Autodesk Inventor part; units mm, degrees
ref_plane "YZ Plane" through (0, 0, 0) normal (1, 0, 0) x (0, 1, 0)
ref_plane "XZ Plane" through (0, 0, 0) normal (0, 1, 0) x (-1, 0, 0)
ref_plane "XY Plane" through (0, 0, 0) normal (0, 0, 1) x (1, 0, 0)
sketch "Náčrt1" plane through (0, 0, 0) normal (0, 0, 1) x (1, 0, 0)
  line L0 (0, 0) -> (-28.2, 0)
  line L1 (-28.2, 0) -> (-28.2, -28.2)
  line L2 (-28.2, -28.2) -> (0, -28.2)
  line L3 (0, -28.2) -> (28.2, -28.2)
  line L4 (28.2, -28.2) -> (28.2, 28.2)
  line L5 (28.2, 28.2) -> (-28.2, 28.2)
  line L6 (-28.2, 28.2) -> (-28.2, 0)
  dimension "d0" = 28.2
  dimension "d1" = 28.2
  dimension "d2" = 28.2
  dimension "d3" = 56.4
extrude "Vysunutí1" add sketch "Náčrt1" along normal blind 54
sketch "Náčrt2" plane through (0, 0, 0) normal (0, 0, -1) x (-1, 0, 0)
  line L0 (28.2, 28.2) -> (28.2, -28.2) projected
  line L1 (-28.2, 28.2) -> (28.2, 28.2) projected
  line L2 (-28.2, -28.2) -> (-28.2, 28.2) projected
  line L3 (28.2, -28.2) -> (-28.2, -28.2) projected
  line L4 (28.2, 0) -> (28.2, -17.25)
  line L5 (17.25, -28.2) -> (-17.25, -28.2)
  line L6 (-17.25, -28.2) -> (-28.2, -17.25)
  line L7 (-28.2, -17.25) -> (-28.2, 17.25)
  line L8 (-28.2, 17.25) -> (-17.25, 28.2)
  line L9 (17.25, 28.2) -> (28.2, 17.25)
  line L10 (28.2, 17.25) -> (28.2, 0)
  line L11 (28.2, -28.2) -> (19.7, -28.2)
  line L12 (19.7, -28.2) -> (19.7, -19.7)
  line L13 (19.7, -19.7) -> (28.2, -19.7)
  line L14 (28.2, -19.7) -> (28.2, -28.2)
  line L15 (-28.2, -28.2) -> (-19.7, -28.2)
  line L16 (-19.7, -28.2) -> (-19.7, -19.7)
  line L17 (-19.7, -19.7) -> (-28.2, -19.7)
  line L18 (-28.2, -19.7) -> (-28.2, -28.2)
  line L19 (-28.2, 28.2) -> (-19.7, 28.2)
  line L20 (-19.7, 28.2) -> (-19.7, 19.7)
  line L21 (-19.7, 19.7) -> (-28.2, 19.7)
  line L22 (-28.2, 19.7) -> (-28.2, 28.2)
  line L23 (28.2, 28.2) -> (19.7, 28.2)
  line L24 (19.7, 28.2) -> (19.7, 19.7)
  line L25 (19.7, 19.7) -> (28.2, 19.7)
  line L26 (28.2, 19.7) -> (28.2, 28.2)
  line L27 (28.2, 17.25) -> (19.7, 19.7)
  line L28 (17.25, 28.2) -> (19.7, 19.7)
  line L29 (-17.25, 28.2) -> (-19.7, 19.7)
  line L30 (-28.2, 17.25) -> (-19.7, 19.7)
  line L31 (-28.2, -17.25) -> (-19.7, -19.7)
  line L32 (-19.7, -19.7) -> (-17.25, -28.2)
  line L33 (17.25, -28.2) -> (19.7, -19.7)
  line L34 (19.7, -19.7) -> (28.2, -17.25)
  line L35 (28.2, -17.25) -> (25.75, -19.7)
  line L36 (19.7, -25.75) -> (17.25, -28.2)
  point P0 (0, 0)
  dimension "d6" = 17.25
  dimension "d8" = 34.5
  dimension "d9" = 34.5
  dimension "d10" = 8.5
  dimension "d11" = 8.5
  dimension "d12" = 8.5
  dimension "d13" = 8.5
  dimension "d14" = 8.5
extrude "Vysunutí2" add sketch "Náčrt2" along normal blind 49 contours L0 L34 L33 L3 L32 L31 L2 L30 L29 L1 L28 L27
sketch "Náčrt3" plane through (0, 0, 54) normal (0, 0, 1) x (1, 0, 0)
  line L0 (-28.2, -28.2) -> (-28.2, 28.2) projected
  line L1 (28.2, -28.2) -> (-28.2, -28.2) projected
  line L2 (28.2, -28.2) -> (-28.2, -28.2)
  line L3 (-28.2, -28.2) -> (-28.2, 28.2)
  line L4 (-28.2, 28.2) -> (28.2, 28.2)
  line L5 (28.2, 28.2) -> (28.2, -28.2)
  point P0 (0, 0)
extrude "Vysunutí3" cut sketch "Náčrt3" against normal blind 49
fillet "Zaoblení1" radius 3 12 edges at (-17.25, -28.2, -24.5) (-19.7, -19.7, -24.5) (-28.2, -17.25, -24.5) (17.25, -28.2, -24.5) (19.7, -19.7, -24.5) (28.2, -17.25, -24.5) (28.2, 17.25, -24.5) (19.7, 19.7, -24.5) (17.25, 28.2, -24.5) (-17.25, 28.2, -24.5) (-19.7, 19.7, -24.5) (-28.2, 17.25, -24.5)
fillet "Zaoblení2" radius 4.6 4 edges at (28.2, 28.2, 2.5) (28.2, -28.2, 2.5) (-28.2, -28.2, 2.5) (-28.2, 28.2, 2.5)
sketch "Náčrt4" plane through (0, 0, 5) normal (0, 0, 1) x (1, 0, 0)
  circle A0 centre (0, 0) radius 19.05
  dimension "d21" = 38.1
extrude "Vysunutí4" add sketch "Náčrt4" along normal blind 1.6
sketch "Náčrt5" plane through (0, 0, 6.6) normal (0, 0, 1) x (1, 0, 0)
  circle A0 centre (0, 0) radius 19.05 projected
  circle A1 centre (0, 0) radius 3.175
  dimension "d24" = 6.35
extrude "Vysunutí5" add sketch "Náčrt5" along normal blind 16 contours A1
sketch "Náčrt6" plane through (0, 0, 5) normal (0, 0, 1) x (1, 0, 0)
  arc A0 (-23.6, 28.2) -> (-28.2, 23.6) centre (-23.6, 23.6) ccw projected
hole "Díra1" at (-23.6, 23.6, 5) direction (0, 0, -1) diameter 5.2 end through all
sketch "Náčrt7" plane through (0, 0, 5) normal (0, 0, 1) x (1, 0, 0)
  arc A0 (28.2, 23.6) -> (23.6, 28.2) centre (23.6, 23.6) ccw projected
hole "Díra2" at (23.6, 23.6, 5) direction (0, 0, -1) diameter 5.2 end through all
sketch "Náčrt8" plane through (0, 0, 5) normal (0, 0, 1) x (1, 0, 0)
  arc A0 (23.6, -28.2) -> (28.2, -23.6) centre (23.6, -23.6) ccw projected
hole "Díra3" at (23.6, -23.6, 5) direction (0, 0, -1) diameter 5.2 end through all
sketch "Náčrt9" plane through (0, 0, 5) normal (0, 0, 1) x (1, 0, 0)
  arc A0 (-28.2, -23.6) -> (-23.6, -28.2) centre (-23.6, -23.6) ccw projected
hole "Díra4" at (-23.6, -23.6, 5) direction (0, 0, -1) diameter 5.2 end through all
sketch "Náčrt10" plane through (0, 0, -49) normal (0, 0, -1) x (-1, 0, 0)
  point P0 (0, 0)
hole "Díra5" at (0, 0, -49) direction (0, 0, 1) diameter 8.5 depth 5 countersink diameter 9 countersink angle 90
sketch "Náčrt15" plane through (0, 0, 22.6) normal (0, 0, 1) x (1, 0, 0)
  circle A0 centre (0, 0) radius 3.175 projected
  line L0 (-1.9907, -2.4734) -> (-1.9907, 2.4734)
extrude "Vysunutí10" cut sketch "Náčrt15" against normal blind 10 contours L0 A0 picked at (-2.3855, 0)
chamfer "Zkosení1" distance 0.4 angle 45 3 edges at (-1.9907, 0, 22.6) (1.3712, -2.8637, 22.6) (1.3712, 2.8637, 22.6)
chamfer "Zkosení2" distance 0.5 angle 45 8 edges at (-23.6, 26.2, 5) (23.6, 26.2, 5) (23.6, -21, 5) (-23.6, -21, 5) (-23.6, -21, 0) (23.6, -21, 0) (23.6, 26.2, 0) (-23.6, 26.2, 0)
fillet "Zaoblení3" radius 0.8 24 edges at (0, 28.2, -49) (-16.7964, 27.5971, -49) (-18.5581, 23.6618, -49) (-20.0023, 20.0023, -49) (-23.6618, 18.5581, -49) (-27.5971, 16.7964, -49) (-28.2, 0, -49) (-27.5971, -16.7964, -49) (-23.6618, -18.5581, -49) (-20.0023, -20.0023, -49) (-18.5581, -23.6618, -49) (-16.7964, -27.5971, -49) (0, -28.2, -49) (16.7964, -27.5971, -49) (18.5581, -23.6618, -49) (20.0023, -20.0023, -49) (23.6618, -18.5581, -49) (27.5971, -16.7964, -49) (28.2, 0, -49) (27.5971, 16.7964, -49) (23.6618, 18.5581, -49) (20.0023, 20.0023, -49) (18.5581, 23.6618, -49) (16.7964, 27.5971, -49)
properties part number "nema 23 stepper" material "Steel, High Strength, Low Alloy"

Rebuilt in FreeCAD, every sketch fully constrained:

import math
import FreeCAD as App
import Part
import Sketcher

V = App.Vector


def edges_at(feature, points):
    """Names of the edges that pass closest to the given points."""
    edges = feature.Shape.Edges
    near = lambda p: min(range(len(edges)), key=lambda i: edges[i].distToShape(Part.Vertex(*p))[0])
    return sorted({f"Edge{near(p) + 1}" for p in points})

doc = App.newDocument("Part")
params = doc.addObject("Spreadsheet::Sheet", "Params")
for row, (alias, value) in enumerate([
    ("sketch1_width", "56.4 mm"),
    ("pad1_length", "54 mm"),
    ("sketch2_width", "34.5 mm"),
    ("pad2_length", "49 mm"),
    ("sketch3_width", "56.4 mm"),
    ("pocket1_length", "49 mm"),
    ("fillet_radius", "3 mm"),
    ("fillet2_radius", "4.6 mm"),
    ("sketch4_diameter", "38.1 mm"),
    ("pad3_length", "1.6 mm"),
    ("sketch5_diameter", "6.35 mm"),
    ("pad4_length", "16 mm"),
    ("sketch6_diameter", "5.2 mm"),
    ("hole_diameter", "5.2 mm"),
    ("sketch7_diameter", "5.2 mm"),
    ("hole2_diameter", "5.2 mm"),
    ("sketch8_diameter", "5.2 mm"),
    ("hole3_diameter", "5.2 mm"),
    ("sketch9_diameter", "5.2 mm"),
    ("hole4_diameter", "5.2 mm"),
    ("sketch10_diameter", "8.5 mm"),
    ("hole5_diameter", "8.5 mm"),
    ("hole5_depth", "5 mm"),
    ("hole5_csink_diameter", "9 mm"),
    ("pocket2_length", "10 mm"),
    ("chamfer_size", "0.4 mm"),
    ("chamfer2_size", "0.5 mm"),
    ("fillet3_radius", "0.8 mm"),
], start=1):
    params.set(f"A{row}", alias)
    params.set(f"B{row}", "=" + value)
    params.setAlias(f"B{row}", alias)

body = doc.addObject("PartDesign::Body", "Body")

sketch1 = body.newObject("Sketcher::SketchObject", "Sketch")
sketch1.AttachmentSupport = (doc.getObject("XY_Plane"), [""])
sketch1.MapMode = "FlatFace"
sketch1.addGeometry(Part.LineSegment(V(-28, 28, 0), V(-28, -28, 0)), False)
sketch1.addGeometry(Part.LineSegment(V(-28, -28, 0), V(28, -28, 0)), False)
sketch1.addGeometry(Part.LineSegment(V(28, -28, 0), V(28, 28, 0)), False)
sketch1.addGeometry(Part.LineSegment(V(28, 28, 0), V(-28, 28, 0)), False)
sketch1.addConstraint(Sketcher.Constraint("Coincident", 0, 2, 1, 1))
sketch1.addConstraint(Sketcher.Constraint("Coincident", 1, 2, 2, 1))
sketch1.addConstraint(Sketcher.Constraint("Coincident", 2, 2, 3, 1))
sketch1.addConstraint(Sketcher.Constraint("Coincident", 3, 2, 0, 1))
sketch1.addConstraint(Sketcher.Constraint("Vertical", 0))
sketch1.addConstraint(Sketcher.Constraint("Horizontal", 1))
sketch1.addConstraint(Sketcher.Constraint("Vertical", 2))
sketch1.addConstraint(Sketcher.Constraint("Horizontal", 3))
sketch1.addConstraint(Sketcher.Constraint("Symmetric", 0, 2, 2, 2, -1, 1))
sketch1.addConstraint(Sketcher.Constraint("Equal", 3, 0))
sketch1.addConstraint(Sketcher.Constraint("DistanceX", 1, 1, 1, 2, 56.4))
sketch1.setExpression("Constraints[10]", "Params.sketch1_width")
pad1 = body.newObject("PartDesign::Pad", "Pad")
pad1.Profile = sketch1
pad1.setExpression("Length", "Params.pad1_length")

sketch2 = body.newObject("Sketcher::SketchObject", "Sketch001")
sketch2.AttachmentSupport = (doc.getObject("XY_Plane"), [""])
sketch2.MapMode = "FlatFace"
sketch2.addGeometry(Part.LineSegment(V(-28, -17, 0), V(-28, 17, 0)), False)
sketch2.addGeometry(Part.LineSegment(V(-28, 17, 0), V(-20, 20, 0)), False)
sketch2.addGeometry(Part.LineSegment(V(-20, 20, 0), V(-17, 28, 0)), False)
sketch2.addGeometry(Part.LineSegment(V(-17, 28, 0), V(17, 28, 0)), False)
sketch2.addGeometry(Part.LineSegment(V(17, 28, 0), V(20, 20, 0)), False)
sketch2.addGeometry(Part.LineSegment(V(20, 20, 0), V(28, 17, 0)), False)
sketch2.addGeometry(Part.LineSegment(V(28, 17, 0), V(28, -17, 0)), False)
sketch2.addGeometry(Part.LineSegment(V(28, -17, 0), V(20, -20, 0)), False)
sketch2.addGeometry(Part.LineSegment(V(20, -20, 0), V(17, -28, 0)), False)
sketch2.addGeometry(Part.LineSegment(V(17, -28, 0), V(-17, -28, 0)), False)
sketch2.addGeometry(Part.LineSegment(V(-17, -28, 0), V(-20, -20, 0)), False)
sketch2.addGeometry(Part.LineSegment(V(-20, -20, 0), V(-28, -17, 0)), False)
sketch2.addConstraint(Sketcher.Constraint("Coincident", 0, 2, 1, 1))
sketch2.addConstraint(Sketcher.Constraint("Coincident", 1, 2, 2, 1))
sketch2.addConstraint(Sketcher.Constraint("Coincident", 2, 2, 3, 1))
sketch2.addConstraint(Sketcher.Constraint("Coincident", 3, 2, 4, 1))
sketch2.addConstraint(Sketcher.Constraint("Coincident", 4, 2, 5, 1))
sketch2.addConstraint(Sketcher.Constraint("Coincident", 5, 2, 6, 1))
sketch2.addConstraint(Sketcher.Constraint("Coincident", 6, 2, 7, 1))
sketch2.addConstraint(Sketcher.Constraint("Coincident", 7, 2, 8, 1))
sketch2.addConstraint(Sketcher.Constraint("Coincident", 8, 2, 9, 1))
sketch2.addConstraint(Sketcher.Constraint("Coincident", 9, 2, 10, 1))
sketch2.addConstraint(Sketcher.Constraint("Coincident", 10, 2, 11, 1))
sketch2.addConstraint(Sketcher.Constraint("Coincident", 11, 2, 0, 1))
sketch2.addConstraint(Sketcher.Constraint("Vertical", 0))
sketch2.addConstraint(Sketcher.Constraint("Horizontal", 3))
sketch2.addConstraint(Sketcher.Constraint("Vertical", 6))
sketch2.addConstraint(Sketcher.Constraint("Horizontal", 9))
sketch2.addConstraint(Sketcher.Constraint("Symmetric", 0, 2, 6, 2, -1, 1))
sketch2.addConstraint(Sketcher.Constraint("Symmetric", 1, 2, 7, 2, -1, 1))
sketch2.addConstraint(Sketcher.Constraint("Symmetric", 2, 2, 8, 2, -1, 1))
sketch2.addConstraint(Sketcher.Constraint("Symmetric", 4, 2, 10, 2, -1, 1))
sketch2.addConstraint(Sketcher.Constraint("Symmetric", 1, 2, 4, 2, -2))
sketch2.addConstraint(Sketcher.Constraint("Perpendicular", 1, 4))
sketch2.addConstraint(Sketcher.Constraint("Perpendicular", 2, 5))
sketch2.addConstraint(Sketcher.Constraint("Perpendicular", 7, 10))
sketch2.addConstraint(Sketcher.Constraint("Perpendicular", 8, 11))
sketch2.addConstraint(Sketcher.Constraint("Horizontal", 0, 2, 5, 2))
sketch2.addConstraint(Sketcher.Constraint("Equal", 9, 0))
sketch2.addConstraint(Sketcher.Constraint("Equal", 1, 2))
sketch2.addConstraint(Sketcher.Constraint("DistanceX", 3, 1, 3, 2, 34.5))
sketch2.addConstraint(Sketcher.Constraint("DistanceX", 0, 2, 1, 2, 8.5))
sketch2.addConstraint(Sketcher.Constraint("DistanceX", 0, 2, -1, 1, 28.2))
sketch2.setExpression("Constraints[28]", "Params.sketch2_width")
pad2 = body.newObject("PartDesign::Pad", "Pad001")
pad2.Profile = sketch2
pad2.setExpression("Length", "Params.pad2_length")
pad2.Reversed = True

sketch3 = body.newObject("Sketcher::SketchObject", "Sketch002")
sketch3.AttachmentSupport = (doc.getObject("XY_Plane"), [""])
sketch3.MapMode = "FlatFace"
sketch3.AttachmentOffset = App.Placement(V(0, 0, 54), App.Rotation())
sketch3.addGeometry(Part.LineSegment(V(-28, 28, 0), V(-28, -28, 0)), False)
sketch3.addGeometry(Part.LineSegment(V(-28, -28, 0), V(28, -28, 0)), False)
sketch3.addGeometry(Part.LineSegment(V(28, -28, 0), V(28, 28, 0)), False)
sketch3.addGeometry(Part.LineSegment(V(28, 28, 0), V(-28, 28, 0)), False)
sketch3.addConstraint(Sketcher.Constraint("Coincident", 0, 2, 1, 1))
sketch3.addConstraint(Sketcher.Constraint("Coincident", 1, 2, 2, 1))
sketch3.addConstraint(Sketcher.Constraint("Coincident", 2, 2, 3, 1))
sketch3.addConstraint(Sketcher.Constraint("Coincident", 3, 2, 0, 1))
sketch3.addConstraint(Sketcher.Constraint("Vertical", 0))
sketch3.addConstraint(Sketcher.Constraint("Horizontal", 1))
sketch3.addConstraint(Sketcher.Constraint("Vertical", 2))
sketch3.addConstraint(Sketcher.Constraint("Horizontal", 3))
sketch3.addConstraint(Sketcher.Constraint("Symmetric", 0, 2, 2, 2, -1, 1))
sketch3.addConstraint(Sketcher.Constraint("Equal", 3, 0))
sketch3.addConstraint(Sketcher.Constraint("DistanceX", 1, 1, 1, 2, 56.4))
sketch3.setExpression("Constraints[10]", "Params.sketch3_width")
pocket1 = body.newObject("PartDesign::Pocket", "Pocket")
pocket1.Profile = sketch3
pocket1.setExpression("Length", "Params.pocket1_length")
doc.recompute()

fillet = body.newObject("PartDesign::Fillet", "Fillet")
fillet.Base = (pocket1, edges_at(pocket1, [
    (-17.25, -28.2, -24.5),
    (-19.7, -19.7, -24.5),
    (-28.2, -17.25, -24.5),
    (17.25, -28.2, -24.5),
    (19.7, -19.7, -24.5),
    (28.2, -17.25, -24.5),
    (28.2, 17.25, -24.5),
    (19.7, 19.7, -24.5),
    (17.25, 28.2, -24.5),
    (-17.25, 28.2, -24.5),
    (-19.7, 19.7, -24.5),
    (-28.2, 17.25, -24.5),
]))
fillet.setExpression("Radius", "Params.fillet_radius")
doc.recompute()

fillet2 = body.newObject("PartDesign::Fillet", "Fillet001")
fillet2.Base = (fillet, edges_at(fillet, [
    (28.2, 28.2, 2.5),
    (28.2, -28.2, 2.5),
    (-28.2, -28.2, 2.5),
    (-28.2, 28.2, 2.5),
]))
fillet2.setExpression("Radius", "Params.fillet2_radius")

sketch4 = body.newObject("Sketcher::SketchObject", "Sketch003")
sketch4.AttachmentSupport = (doc.getObject("XY_Plane"), [""])
sketch4.MapMode = "FlatFace"
sketch4.AttachmentOffset = App.Placement(V(0, 0, 5), App.Rotation())
sketch4.addGeometry(Part.Circle(V(0, 0, 0), V(0, 0, 1), 19), False)
sketch4.addConstraint(Sketcher.Constraint("Coincident", 0, 3, -1, 1))
sketch4.addConstraint(Sketcher.Constraint("Diameter", 0, 38.1))
sketch4.setExpression("Constraints[1]", "Params.sketch4_diameter")
pad3 = body.newObject("PartDesign::Pad", "Pad002")
pad3.Profile = sketch4
pad3.setExpression("Length", "Params.pad3_length")

sketch5 = body.newObject("Sketcher::SketchObject", "Sketch004")
sketch5.AttachmentSupport = (doc.getObject("XY_Plane"), [""])
sketch5.MapMode = "FlatFace"
sketch5.AttachmentOffset = App.Placement(V(0, 0, 6.6), App.Rotation())
sketch5.addGeometry(Part.Circle(V(0, 0, 0), V(0, 0, 1), 3.2), False)
sketch5.addConstraint(Sketcher.Constraint("Coincident", 0, 3, -1, 1))
sketch5.addConstraint(Sketcher.Constraint("Diameter", 0, 6.35))
sketch5.setExpression("Constraints[1]", "Params.sketch5_diameter")
pad4 = body.newObject("PartDesign::Pad", "Pad003")
pad4.Profile = sketch5
pad4.setExpression("Length", "Params.pad4_length")

sketch6 = body.newObject("Sketcher::SketchObject", "Sketch005")
sketch6.AttachmentSupport = (doc.getObject("XY_Plane"), [""])
sketch6.MapMode = "FlatFace"
sketch6.AttachmentOffset = App.Placement(V(0, 0, 5), App.Rotation())
sketch6.addGeometry(Part.Circle(V(-23.6, 23.6, 0), V(0, 0, 1), 2.6), False)
sketch6.addConstraint(Sketcher.Constraint("Diameter", 0, 5.2))
sketch6.addConstraint(Sketcher.Constraint("DistanceX", 0, 3, -1, 1, 23.6))
sketch6.addConstraint(Sketcher.Constraint("DistanceY", -1, 1, 0, 3, 23.6))
sketch6.setExpression("Constraints[0]", "Params.sketch6_diameter")
doc.recompute()
hole = body.newObject("PartDesign::Hole", "Hole")
hole.Profile = sketch6
hole.ThreadType = "None"
hole.setExpression("Diameter", "Params.hole_diameter")
hole.DepthType = "ThroughAll"

sketch7 = body.newObject("Sketcher::SketchObject", "Sketch006")
sketch7.AttachmentSupport = (doc.getObject("XY_Plane"), [""])
sketch7.MapMode = "FlatFace"
sketch7.AttachmentOffset = App.Placement(V(0, 0, 5), App.Rotation())
sketch7.addGeometry(Part.Circle(V(23.6, 23.6, 0), V(0, 0, 1), 2.6), False)
sketch7.addConstraint(Sketcher.Constraint("Diameter", 0, 5.2))
sketch7.addConstraint(Sketcher.Constraint("DistanceX", -1, 1, 0, 3, 23.6))
sketch7.addConstraint(Sketcher.Constraint("DistanceY", -1, 1, 0, 3, 23.6))
sketch7.setExpression("Constraints[0]", "Params.sketch7_diameter")
doc.recompute()
hole2 = body.newObject("PartDesign::Hole", "Hole001")
hole2.Profile = sketch7
hole2.ThreadType = "None"
hole2.setExpression("Diameter", "Params.hole2_diameter")
hole2.DepthType = "ThroughAll"

sketch8 = body.newObject("Sketcher::SketchObject", "Sketch007")
sketch8.AttachmentSupport = (doc.getObject("XY_Plane"), [""])
sketch8.MapMode = "FlatFace"
sketch8.AttachmentOffset = App.Placement(V(0, 0, 5), App.Rotation())
sketch8.addGeometry(Part.Circle(V(23.6, -23.6, 0), V(0, 0, 1), 2.6), False)
sketch8.addConstraint(Sketcher.Constraint("Diameter", 0, 5.2))
sketch8.addConstraint(Sketcher.Constraint("DistanceX", -1, 1, 0, 3, 23.6))
sketch8.addConstraint(Sketcher.Constraint("DistanceY", 0, 3, -1, 1, 23.6))
sketch8.setExpression("Constraints[0]", "Params.sketch8_diameter")
doc.recompute()
hole3 = body.newObject("PartDesign::Hole", "Hole002")
hole3.Profile = sketch8
hole3.ThreadType = "None"
hole3.setExpression("Diameter", "Params.hole3_diameter")
hole3.DepthType = "ThroughAll"

sketch9 = body.newObject("Sketcher::SketchObject", "Sketch008")
sketch9.AttachmentSupport = (doc.getObject("XY_Plane"), [""])
sketch9.MapMode = "FlatFace"
sketch9.AttachmentOffset = App.Placement(V(0, 0, 5), App.Rotation())
sketch9.addGeometry(Part.Circle(V(-23.6, -23.6, 0), V(0, 0, 1), 2.6), False)
sketch9.addConstraint(Sketcher.Constraint("Diameter", 0, 5.2))
sketch9.addConstraint(Sketcher.Constraint("DistanceX", 0, 3, -1, 1, 23.6))
sketch9.addConstraint(Sketcher.Constraint("DistanceY", 0, 3, -1, 1, 23.6))
sketch9.setExpression("Constraints[0]", "Params.sketch9_diameter")
doc.recompute()
hole4 = body.newObject("PartDesign::Hole", "Hole003")
hole4.Profile = sketch9
hole4.ThreadType = "None"
hole4.setExpression("Diameter", "Params.hole4_diameter")
hole4.DepthType = "ThroughAll"

sketch10 = body.newObject("Sketcher::SketchObject", "Sketch009")
sketch10.AttachmentSupport = (doc.getObject("XY_Plane"), [""])
sketch10.MapMode = "FlatFace"
sketch10.AttachmentOffset = App.Placement(V(0, 0, -49), App.Rotation())
sketch10.addGeometry(Part.Circle(V(0, 0, 0), V(0, 0, 1), 4.2), False)
sketch10.addConstraint(Sketcher.Constraint("Coincident", 0, 3, -1, 1))
sketch10.addConstraint(Sketcher.Constraint("Diameter", 0, 8.5))
sketch10.setExpression("Constraints[1]", "Params.sketch10_diameter")
doc.recompute()
hole5 = body.newObject("PartDesign::Hole", "Hole004")
hole5.Profile = sketch10
hole5.ThreadType = "None"
hole5.setExpression("Diameter", "Params.hole5_diameter")
hole5.DepthType = "Dimension"
hole5.setExpression("Depth", "Params.hole5_depth")
hole5.DrillPoint = "Flat"
hole5.HoleCutType = "Countersink"
hole5.setExpression("HoleCutDiameter", "Params.hole5_csink_diameter")
hole5.HoleCutCountersinkAngle = 90
hole5.Reversed = True

sketch11 = body.newObject("Sketcher::SketchObject", "Sketch010")
sketch11.AttachmentSupport = (doc.getObject("XY_Plane"), [""])
sketch11.MapMode = "FlatFace"
sketch11.AttachmentOffset = App.Placement(V(0, 0, 22.6), App.Rotation())
sketch11.addGeometry(Part.LineSegment(V(-2, -2.5, 0), V(-2, 2.5, 0)), False)
sketch11.addGeometry(Part.ArcOfCircle(Part.Circle(V(0, 0, 0), V(0, 0, 1), 3.2), math.radians(129), math.radians(231)), False)
sketch11.addConstraint(Sketcher.Constraint("Coincident", 0, 1, 1, 2))
sketch11.addConstraint(Sketcher.Constraint("Coincident", 1, 1, 0, 2))
sketch11.addConstraint(Sketcher.Constraint("Vertical", 0))
sketch11.addConstraint(Sketcher.Constraint("Coincident", 1, 3, -1, 1))
sketch11.addConstraint(Sketcher.Constraint("Radius", 1, 3.175))
sketch11.addConstraint(Sketcher.Constraint("DistanceY", 0, 1, 0, 2, 4.9468))
pocket2 = body.newObject("PartDesign::Pocket", "Pocket001")
pocket2.Profile = sketch11
pocket2.setExpression("Length", "Params.pocket2_length")
doc.recompute()

chamfer = body.newObject("PartDesign::Chamfer", "Chamfer")
chamfer.Base = (pocket2, edges_at(pocket2, [(-1.991, 0, 22.6), (1.371, -2.864, 22.6), (1.371, 2.864, 22.6)]))
chamfer.setExpression("Size", "Params.chamfer_size")
doc.recompute()

chamfer2 = body.newObject("PartDesign::Chamfer", "Chamfer001")
chamfer2.Base = (chamfer, edges_at(chamfer, [
    (-23.6, 26.2, 5),
    (23.6, 26.2, 5),
    (23.6, -21, 5),
    (-23.6, -21, 5),
    (-23.6, -21, 0),
    (23.6, -21, 0),
    (23.6, 26.2, 0),
    (-23.6, 26.2, 0),
]))
chamfer2.setExpression("Size", "Params.chamfer2_size")
doc.recompute()

fillet3 = body.newObject("PartDesign::Fillet", "Fillet002")
fillet3.Base = (chamfer2, edges_at(chamfer2, [
    (0, 28.2, -49),
    (-16.796, 27.597, -49),
    (-18.558, 23.662, -49),
    (-20.002, 20.002, -49),
    (-23.662, 18.558, -49),
    (-27.597, 16.796, -49),
    (-28.2, 0, -49),
    (-27.597, -16.796, -49),
    (-23.662, -18.558, -49),
    (-20.002, -20.002, -49),
    (-18.558, -23.662, -49),
    (-16.796, -27.597, -49),
    (0, -28.2, -49),
    (16.796, -27.597, -49),
    (18.558, -23.662, -49),
    (20.002, -20.002, -49),
    (23.662, -18.558, -49),
    (27.597, -16.796, -49),
    (28.2, 0, -49),
    (27.597, 16.796, -49),
    (23.662, 18.558, -49),
    (20.002, 20.002, -49),
    (18.558, 23.662, -49),
    (16.796, 27.597, -49),
]))
fillet3.setExpression("Radius", "Params.fillet3_radius")

doc.recompute()
